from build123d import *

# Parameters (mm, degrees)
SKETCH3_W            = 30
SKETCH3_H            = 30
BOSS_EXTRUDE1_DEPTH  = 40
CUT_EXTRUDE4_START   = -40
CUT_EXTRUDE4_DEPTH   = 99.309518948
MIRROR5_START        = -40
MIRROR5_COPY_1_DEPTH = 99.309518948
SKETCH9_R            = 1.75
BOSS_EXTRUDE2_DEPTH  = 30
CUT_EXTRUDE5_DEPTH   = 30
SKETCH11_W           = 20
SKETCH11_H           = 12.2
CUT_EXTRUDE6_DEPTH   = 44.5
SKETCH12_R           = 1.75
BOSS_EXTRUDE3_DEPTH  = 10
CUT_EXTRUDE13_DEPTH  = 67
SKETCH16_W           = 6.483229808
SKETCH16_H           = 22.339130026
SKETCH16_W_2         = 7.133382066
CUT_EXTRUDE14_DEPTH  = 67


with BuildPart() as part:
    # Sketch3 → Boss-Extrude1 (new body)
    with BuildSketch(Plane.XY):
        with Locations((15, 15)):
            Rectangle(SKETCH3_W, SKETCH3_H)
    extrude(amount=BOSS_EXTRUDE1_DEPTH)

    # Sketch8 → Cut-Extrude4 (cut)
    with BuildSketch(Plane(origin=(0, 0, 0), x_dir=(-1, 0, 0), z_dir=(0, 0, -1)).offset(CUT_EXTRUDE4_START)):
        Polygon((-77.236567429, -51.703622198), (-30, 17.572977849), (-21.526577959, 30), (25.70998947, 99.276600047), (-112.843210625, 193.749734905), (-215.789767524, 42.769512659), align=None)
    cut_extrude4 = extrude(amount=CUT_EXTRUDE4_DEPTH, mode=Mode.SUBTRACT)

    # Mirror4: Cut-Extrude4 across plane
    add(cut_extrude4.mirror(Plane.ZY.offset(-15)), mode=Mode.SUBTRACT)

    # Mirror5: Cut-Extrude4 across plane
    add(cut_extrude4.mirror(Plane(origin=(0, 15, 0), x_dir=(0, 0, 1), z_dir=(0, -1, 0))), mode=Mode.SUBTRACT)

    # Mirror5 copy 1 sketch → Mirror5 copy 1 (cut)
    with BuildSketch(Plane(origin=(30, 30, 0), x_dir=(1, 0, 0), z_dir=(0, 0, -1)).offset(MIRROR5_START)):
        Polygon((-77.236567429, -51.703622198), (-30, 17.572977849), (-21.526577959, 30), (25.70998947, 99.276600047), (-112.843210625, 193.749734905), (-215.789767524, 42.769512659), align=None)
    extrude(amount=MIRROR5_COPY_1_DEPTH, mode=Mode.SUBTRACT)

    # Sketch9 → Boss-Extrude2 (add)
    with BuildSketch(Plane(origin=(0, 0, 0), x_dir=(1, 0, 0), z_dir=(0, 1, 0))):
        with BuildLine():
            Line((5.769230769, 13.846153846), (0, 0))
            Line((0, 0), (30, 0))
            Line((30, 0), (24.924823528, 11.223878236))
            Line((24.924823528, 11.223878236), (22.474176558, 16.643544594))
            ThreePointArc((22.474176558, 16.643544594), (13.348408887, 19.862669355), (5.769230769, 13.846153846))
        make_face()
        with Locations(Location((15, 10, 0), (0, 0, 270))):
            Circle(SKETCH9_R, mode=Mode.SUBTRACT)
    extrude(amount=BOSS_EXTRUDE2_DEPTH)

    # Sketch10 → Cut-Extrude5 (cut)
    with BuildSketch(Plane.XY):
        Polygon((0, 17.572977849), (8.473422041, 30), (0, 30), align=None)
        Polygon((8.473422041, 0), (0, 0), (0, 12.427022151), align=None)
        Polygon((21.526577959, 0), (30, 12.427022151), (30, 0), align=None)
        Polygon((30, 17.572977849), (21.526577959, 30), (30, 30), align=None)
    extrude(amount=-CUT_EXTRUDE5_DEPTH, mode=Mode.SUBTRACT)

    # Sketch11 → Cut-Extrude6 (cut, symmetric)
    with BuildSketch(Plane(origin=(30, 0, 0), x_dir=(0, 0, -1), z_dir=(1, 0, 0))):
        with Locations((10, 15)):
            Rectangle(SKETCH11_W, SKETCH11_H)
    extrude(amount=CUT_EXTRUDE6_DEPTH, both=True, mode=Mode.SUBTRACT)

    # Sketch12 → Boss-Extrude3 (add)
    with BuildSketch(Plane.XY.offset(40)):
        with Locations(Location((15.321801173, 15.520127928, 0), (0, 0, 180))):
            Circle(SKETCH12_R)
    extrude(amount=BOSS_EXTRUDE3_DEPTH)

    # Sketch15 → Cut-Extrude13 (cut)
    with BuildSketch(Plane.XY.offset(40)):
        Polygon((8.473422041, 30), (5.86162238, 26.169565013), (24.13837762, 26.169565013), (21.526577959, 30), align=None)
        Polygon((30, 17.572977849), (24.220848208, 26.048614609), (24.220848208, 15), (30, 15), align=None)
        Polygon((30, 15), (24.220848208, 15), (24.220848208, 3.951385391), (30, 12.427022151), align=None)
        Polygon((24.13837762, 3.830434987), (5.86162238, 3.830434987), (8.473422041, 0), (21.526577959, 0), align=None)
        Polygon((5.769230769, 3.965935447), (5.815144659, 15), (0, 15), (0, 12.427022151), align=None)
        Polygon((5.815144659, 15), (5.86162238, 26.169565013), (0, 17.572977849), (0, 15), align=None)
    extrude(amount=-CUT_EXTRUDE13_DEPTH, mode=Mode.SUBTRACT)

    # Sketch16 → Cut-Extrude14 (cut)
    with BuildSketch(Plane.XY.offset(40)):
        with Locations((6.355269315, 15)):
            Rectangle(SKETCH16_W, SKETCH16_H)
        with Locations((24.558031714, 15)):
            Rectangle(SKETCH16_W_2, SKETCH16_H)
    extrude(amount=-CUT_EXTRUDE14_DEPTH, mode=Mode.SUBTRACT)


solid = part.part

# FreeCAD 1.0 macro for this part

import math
import FreeCAD as App
import Part
import Sketcher
Q = App.Units.Quantity


def add_polygon(sketch, points):
    """Adds a closed chain of lines whose ends are joined by coincident constraints."""
    first, n = sketch.GeometryCount, len(points)
    for a, b in zip(points, points[1:] + points[:1]):
        sketch.addGeometry(Part.LineSegment(App.Vector(*a, 0), App.Vector(*b, 0)), False)
    for i in range(n):
        sketch.addConstraint(Sketcher.Constraint("Coincident", first + i, 2, first + (i + 1) % n, 1))

doc = App.newDocument("Part")
body = doc.addObject("PartDesign::Body", "Body")

# Sketch on XY plane
sketch1 = doc.addObject("Sketcher::SketchObject", "Sketch")
body.addObject(sketch1)
sketch1.AttachmentSupport = (doc.XY_Plane, [""])
sketch1.MapMode = "FlatFace"
add_polygon(sketch1, [(0, 30), (0, 0), (30, 0), (30, 30)])  # lines 0-3
sketch1.addConstraint([
    Sketcher.Constraint("Vertical", 0),
    Sketcher.Constraint("Horizontal", 1),
    Sketcher.Constraint("Vertical", 2),
    Sketcher.Constraint("Horizontal", 3),
    Sketcher.Constraint("Coincident", 0, 2, -1, 1),
    Sketcher.Constraint("Equal", 3, 0),
    Sketcher.Constraint("DistanceX", 1, 1, 1, 2, Q("30 mm")),
])
pad1 = doc.addObject("PartDesign::Pad", "Pad")
body.addObject(pad1)
pad1.Profile = sketch1
pad1.Length = 40

# Sketch on XY plane
sketch2 = doc.addObject("Sketcher::SketchObject", "Sketch001")
body.addObject(sketch2)
sketch2.AttachmentSupport = (doc.XY_Plane, [""])
sketch2.MapMode = "FlatFace"
sketch2.AttachmentOffset = App.Placement(App.Vector(0, 0, 40), App.Rotation())
add_polygon(sketch2, [(77, -52), (30, 18), (22, 30), (-26, 99), (113, 194), (216, 43)])  # lines 0-5
sketch2.addConstraint([
    Sketcher.Constraint("Parallel", 0, 1),
    Sketcher.Constraint("Parallel", 1, 2),
    Sketcher.Constraint("Perpendicular", 2, 3),
    Sketcher.Constraint("Perpendicular", 3, 4),
    Sketcher.Constraint("Perpendicular", 4, 5),
    Sketcher.Constraint("Equal", 0, 2),
    Sketcher.Constraint("DistanceX", -1, 1, 0, 2, Q("30 mm")),
    Sketcher.Constraint("DistanceY", -1, 1, 1, 2, Q("30 mm")),
    Sketcher.Constraint("DistanceY", -1, 1, 2, 2, Q("99.2766 mm")),
    Sketcher.Constraint("DistanceX", 2, 2, 3, 2, Q("138.5532 mm")),
    Sketcher.Constraint("Distance", 0, Q("83.848319 mm")),
    Sketcher.Constraint("DistanceX", 2, 2, -1, 1, Q("25.709989 mm")),
])
pocket1 = doc.addObject("PartDesign::Pocket", "Pocket")
body.addObject(pocket1)
pocket1.Profile = sketch2
pocket1.Length = 99.309519
doc.recompute()

datumplane = doc.addObject("PartDesign::Plane", "DatumPlane")
body.addObject(datumplane)
datumplane.AttachmentSupport = (doc.YZ_Plane, [""])
datumplane.MapMode = "FlatFace"
datumplane.AttachmentOffset = App.Placement(App.Vector(0, 0, 15), App.Rotation())
mirrored = doc.addObject("PartDesign::Mirrored", "Mirrored")
body.addObject(mirrored)
mirrored.Originals = [pocket1]
mirrored.MirrorPlane = (datumplane, [""])
body.Tip = mirrored
doc.recompute()

datumplane2 = doc.addObject("PartDesign::Plane", "DatumPlane001")
body.addObject(datumplane2)
datumplane2.AttachmentSupport = (doc.XZ_Plane, [""])
datumplane2.MapMode = "FlatFace"
datumplane2.AttachmentOffset = App.Placement(App.Vector(0, 0, -15), App.Rotation())
mirrored2 = doc.addObject("PartDesign::Mirrored", "Mirrored001")
body.addObject(mirrored2)
mirrored2.Originals = [pocket1]
mirrored2.MirrorPlane = (datumplane2, [""])
body.Tip = mirrored2

# Sketch on XY plane
sketch3 = doc.addObject("Sketcher::SketchObject", "Sketch002")
body.addObject(sketch3)
sketch3.AttachmentSupport = (doc.XY_Plane, [""])
sketch3.MapMode = "FlatFace"
sketch3.AttachmentOffset = App.Placement(App.Vector(0, 0, 40), App.Rotation())
add_polygon(sketch3, [(-47, 82), (0, 12), (8, 0), (56, -69), (-83, -164), (-186, -13)])  # lines 0-5
sketch3.addConstraint([
    Sketcher.Constraint("PointOnObject", 0, 2, -2),
    Sketcher.Constraint("PointOnObject", 1, 2, -1),
    Sketcher.Constraint("Parallel", 0, 1),
    Sketcher.Constraint("Parallel", 1, 2),
    Sketcher.Constraint("Perpendicular", 2, 3),
    Sketcher.Constraint("Perpendicular", 3, 4),
    Sketcher.Constraint("Perpendicular", 4, 5),
    Sketcher.Constraint("Equal", 0, 2),
    Sketcher.Constraint("DistanceY", 2, 2, -1, 1, Q("69.2766 mm")),
    Sketcher.Constraint("DistanceX", 3, 2, 2, 2, Q("138.5532 mm")),
    Sketcher.Constraint("Distance", 0, Q("83.848319 mm")),
    Sketcher.Constraint("DistanceX", -1, 1, 2, 2, Q("55.709989 mm")),
])
pocket2 = doc.addObject("PartDesign::Pocket", "Pocket001")
body.addObject(pocket2)
pocket2.Profile = sketch3
pocket2.Length = 99.309519

# Sketch on XZ plane
sketch4 = doc.addObject("Sketcher::SketchObject", "Sketch003")
body.addObject(sketch4)
sketch4.AttachmentSupport = (doc.XZ_Plane, [""])
sketch4.MapMode = "FlatFace"
sketch4.addGeometry([
    Part.LineSegment(App.Vector(5.8, -13.8, 0), App.Vector(0, 0, 0)),  # 0
    Part.LineSegment(App.Vector(0, 0, 0), App.Vector(30, 0, 0)),  # 1
    Part.LineSegment(App.Vector(30, 0, 0), App.Vector(24.9, -11.2, 0)),  # 2
    Part.LineSegment(App.Vector(24.9, -11.2, 0), App.Vector(22.5, -16.6, 0)),  # 3
    Part.ArcOfCircle(Part.Circle(App.Vector(15, -10, 0), App.Vector(0, 0, 1), 10), math.radians(-157), math.radians(-42)),  # 4
    Part.Circle(App.Vector(15, -10, 0), App.Vector(0, 0, 1), 1.8),  # 5
], False)
sketch4.addConstraint([
    Sketcher.Constraint("Coincident", 0, 2, 1, 1),
    Sketcher.Constraint("Coincident", 1, 2, 2, 1),
    Sketcher.Constraint("Coincident", 2, 2, 3, 1),
    Sketcher.Constraint("Coincident", 3, 2, 4, 2),
    Sketcher.Constraint("Tangent", 4, 1, 0, 1),
    Sketcher.Constraint("Horizontal", 1),
    Sketcher.Constraint("Coincident", 0, 2, -1, 1),
    Sketcher.Constraint("Coincident", 5, 3, 4, 3),
    Sketcher.Constraint("Parallel", 2, 3),
    Sketcher.Constraint("Radius", 4, Q("10 mm")),
    Sketcher.Constraint("Diameter", 5, Q("3.5 mm")),
    Sketcher.Constraint("DistanceX", 1, 1, 1, 2, Q("30 mm")),
    Sketcher.Constraint("Distance", 0, Q("15 mm")),
    Sketcher.Constraint("DistanceX", -1, 1, 4, 3, Q("15 mm")),
    Sketcher.Constraint("Distance", 2, Q("12.317989 mm")),
    Sketcher.Constraint("Distance", 3, Q("5.947979 mm")),
])
pad2 = doc.addObject("PartDesign::Pad", "Pad001")
body.addObject(pad2)
pad2.Profile = sketch4
pad2.Length = 30
pad2.Reversed = True

# Sketch on XY plane
sketch5 = doc.addObject("Sketcher::SketchObject", "Sketch004")
body.addObject(sketch5)
sketch5.AttachmentSupport = (doc.XY_Plane, [""])
sketch5.MapMode = "FlatFace"
add_polygon(sketch5, [(0, 18), (8, 30), (0, 30)])  # lines 0-2
add_polygon(sketch5, [(0, 0), (8, 0), (0, 12)])  # lines 3-5
add_polygon(sketch5, [(30, 12), (22, 0), (30, 0)])  # lines 6-8
add_polygon(sketch5, [(22, 30), (30, 18), (30, 30)])  # lines 9-11
sketch5.addConstraint([
    Sketcher.Constraint("Horizontal", 1),
    Sketcher.Constraint("Vertical", 2),
    Sketcher.Constraint("Horizontal", 3),
    Sketcher.Constraint("Vertical", 5),
    Sketcher.Constraint("Horizontal", 7),
    Sketcher.Constraint("Vertical", 8),
    Sketcher.Constraint("Vertical", 10),
    Sketcher.Constraint("Horizontal", 11),
    Sketcher.Constraint("Coincident", 5, 2, -1, 1),
    Sketcher.Constraint("PointOnObject", 1, 2, -2),
    Sketcher.Constraint("PointOnObject", 6, 2, -1),
    Sketcher.Constraint("Parallel", 0, 6),
    Sketcher.Constraint("Parallel", 4, 9),
    Sketcher.Constraint("Horizontal", 4, 2, 8, 2),
    Sketcher.Constraint("Horizontal", 2, 2, 9, 2),
    Sketcher.Constraint("Horizontal", 1, 2, 10, 2),
    Sketcher.Constraint("Vertical", 0, 2, 3, 2),
    Sketcher.Constraint("Vertical", 8, 2, 9, 2),
    Sketcher.Constraint("Vertical", 6, 2, 11, 2),
    Sketcher.Constraint("DistanceY", -1, 1, 0, 2, Q("30 mm")),
    Sketcher.Constraint("DistanceX", -1, 1, 7, 2, Q("30 mm")),
    Sketcher.Constraint("DistanceX", 1, 2, 1, 1, Q("8.473422 mm")),
    Sketcher.Constraint("DistanceY", 2, 2, 2, 1, Q("12.427022 mm")),
])
pocket3 = doc.addObject("PartDesign::Pocket", "Pocket002")
body.addObject(pocket3)
pocket3.Profile = sketch5
pocket3.Length = 30

# Sketch on YZ plane
sketch6 = doc.addObject("Sketcher::SketchObject", "Sketch005")
body.addObject(sketch6)
sketch6.AttachmentSupport = (doc.YZ_Plane, [""])
sketch6.MapMode = "FlatFace"
sketch6.AttachmentOffset = App.Placement(App.Vector(0, 0, 30), App.Rotation())
add_polygon(sketch6, [(21, 0), (9, 0), (9, -20), (21, -20)])  # lines 0-3
sketch6.addConstraint([
    Sketcher.Constraint("Horizontal", 0),
    Sketcher.Constraint("Vertical", 1),
    Sketcher.Constraint("Horizontal", 2),
    Sketcher.Constraint("Vertical", 3),
    Sketcher.Constraint("PointOnObject", 0, 2, -1),
    Sketcher.Constraint("DistanceY", 1, 2, 1, 1, Q("20 mm")),
    Sketcher.Constraint("DistanceX", 0, 2, 0, 1, Q("12.2 mm")),
    Sketcher.Constraint("DistanceX", -1, 1, 0, 2, Q("8.9 mm")),
])
pocket4 = doc.addObject("PartDesign::Pocket", "Pocket003")
body.addObject(pocket4)
pocket4.Profile = sketch6
pocket4.Length = 89
pocket4.Midplane = True

# Sketch on XY plane
sketch7 = doc.addObject("Sketcher::SketchObject", "Sketch006")
body.addObject(sketch7)
sketch7.AttachmentSupport = (doc.XY_Plane, [""])
sketch7.MapMode = "FlatFace"
sketch7.AttachmentOffset = App.Placement(App.Vector(0, 0, 40), App.Rotation())
sketch7.addGeometry(Part.Circle(App.Vector(15.3, 15.5, 0), App.Vector(0, 0, 1), 1.8), False)
sketch7.addConstraint([
    Sketcher.Constraint("Diameter", 0, Q("3.5 mm")),
    Sketcher.Constraint("DistanceX", -1, 1, 0, 3, Q("15.321801 mm")),
    Sketcher.Constraint("DistanceY", -1, 1, 0, 3, Q("15.520128 mm")),
])
pad3 = doc.addObject("PartDesign::Pad", "Pad002")
body.addObject(pad3)
pad3.Profile = sketch7
pad3.Length = 10

# Sketch on XY plane
sketch8 = doc.addObject("Sketcher::SketchObject", "Sketch007")
body.addObject(sketch8)
sketch8.AttachmentSupport = (doc.XY_Plane, [""])
sketch8.MapMode = "FlatFace"
sketch8.AttachmentOffset = App.Placement(App.Vector(0, 0, 40), App.Rotation())
add_polygon(sketch8, [(8.5, 30), (5.9, 26.2), (24.1, 26.2), (21.5, 30)])  # lines 0-3
add_polygon(sketch8, [(30, 17.6), (24.2, 26), (24.2, 4), (30, 12.4)])  # lines 4-7
add_polygon(sketch8, [(24.1, 3.8), (5.9, 3.8), (8.5, 0), (21.5, 0)])  # lines 8-11
add_polygon(sketch8, [(5.8, 4), (5.8, 15), (5.9, 26.2), (0, 17.6), (0, 12.4)])  # lines 12-16
sketch8.addConstraint([
    Sketcher.Constraint("Horizontal", 1),
    Sketcher.Constraint("Horizontal", 3),
    Sketcher.Constraint("Vertical", 5),
    Sketcher.Constraint("Vertical", 7),
    Sketcher.Constraint("Horizontal", 8),
    Sketcher.Constraint("Horizontal", 10),
    Sketcher.Constraint("Vertical", 15),
    Sketcher.Constraint("Coincident", 13, 2, 0, 2),
    Sketcher.Constraint("PointOnObject", 9, 2, -1),
    Sketcher.Constraint("PointOnObject", 14, 2, -2),
    Sketcher.Constraint("Parallel", 2, 4),
    Sketcher.Constraint("Parallel", 0, 6),
    Sketcher.Constraint("Parallel", 4, 9),
    Sketcher.Constraint("Parallel", 6, 11),
    Sketcher.Constraint("Parallel", 12, 13),
    Sketcher.Constraint("Parallel", 11, 14),
    Sketcher.Constraint("Parallel", 9, 16),
    Sketcher.Constraint("Horizontal", 7, 2, 14, 2),
    Sketcher.Constraint("Horizontal", 6, 2, 15, 2),
    Sketcher.Constraint("Vertical", 0, 2, 8, 2),
    Sketcher.Constraint("Vertical", 3, 2, 9, 2),
    Sketcher.Constraint("Vertical", 2, 2, 10, 2),
    Sketcher.Constraint("Vertical", 1, 2, 11, 2),
    Sketcher.Constraint("DistanceY", -1, 1, 2, 2, Q("30 mm")),
    Sketcher.Constraint("DistanceX", -1, 1, 6, 2, Q("30 mm")),
    Sketcher.Constraint("DistanceY", -1, 1, 12, 2, Q("15 mm")),
    Sketcher.Constraint("Distance", 16, Q("10.240801 mm")),
    Sketcher.Constraint("DistanceY", 5, 2, 5, 1, Q("22.097229 mm")),
    Sketcher.Constraint("DistanceX", 2, 2, 1, 2, Q("2.6118 mm")),
    Sketcher.Constraint("DistanceY", 8, 2, 16, 2, Q("0.1355 mm")),
    Sketcher.Constraint("Distance", 4, Q("10.258412 mm")),
    Sketcher.Constraint("Distance", 12, Q("11.03416 mm")),
    Sketcher.Constraint("DistanceX", 1, 1, 1, 2, Q("18.276755 mm")),
])
pocket5 = doc.addObject("PartDesign::Pocket", "Pocket004")
body.addObject(pocket5)
pocket5.Profile = sketch8
pocket5.Length = 67

# Sketch on XY plane
sketch9 = doc.addObject("Sketcher::SketchObject", "Sketch008")
body.addObject(sketch9)
sketch9.AttachmentSupport = (doc.XY_Plane, [""])
sketch9.MapMode = "FlatFace"
sketch9.AttachmentOffset = App.Placement(App.Vector(0, 0, 40), App.Rotation())
add_polygon(sketch9, [(3, 26), (3, 4), (10, 4), (10, 26)])  # lines 0-3
add_polygon(sketch9, [(21, 26), (21, 4), (28, 4), (28, 26)])  # lines 4-7
sketch9.addConstraint([
    Sketcher.Constraint("Vertical", 0),
    Sketcher.Constraint("Horizontal", 1),
    Sketcher.Constraint("Vertical", 2),
    Sketcher.Constraint("Horizontal", 3),
    Sketcher.Constraint("Vertical", 4),
    Sketcher.Constraint("Horizontal", 5),
    Sketcher.Constraint("Vertical", 6),
    Sketcher.Constraint("Horizontal", 7),
    Sketcher.Constraint("Horizontal", 1, 2, 4, 2),
    Sketcher.Constraint("Horizontal", 3, 2, 6, 2),
    Sketcher.Constraint("DistanceX", 1, 1, 1, 2, Q("6.48323 mm")),
    Sketcher.Constraint("DistanceY", 0, 2, 0, 1, Q("22.33913 mm")),
    Sketcher.Constraint("DistanceX", 5, 1, 5, 2, Q("7.133382 mm")),
    Sketcher.Constraint("DistanceX", -1, 1, 4, 2, Q("20.991341 mm")),
    Sketcher.Constraint("DistanceX", 1, 2, 5, 2, Q("18.527839 mm")),
    Sketcher.Constraint("DistanceY", -1, 1, 0, 2, Q("3.830435 mm")),
])
pocket6 = doc.addObject("PartDesign::Pocket", "Pocket005")
body.addObject(pocket6)
pocket6.Profile = sketch9
pocket6.Length = 67

doc.recompute()
